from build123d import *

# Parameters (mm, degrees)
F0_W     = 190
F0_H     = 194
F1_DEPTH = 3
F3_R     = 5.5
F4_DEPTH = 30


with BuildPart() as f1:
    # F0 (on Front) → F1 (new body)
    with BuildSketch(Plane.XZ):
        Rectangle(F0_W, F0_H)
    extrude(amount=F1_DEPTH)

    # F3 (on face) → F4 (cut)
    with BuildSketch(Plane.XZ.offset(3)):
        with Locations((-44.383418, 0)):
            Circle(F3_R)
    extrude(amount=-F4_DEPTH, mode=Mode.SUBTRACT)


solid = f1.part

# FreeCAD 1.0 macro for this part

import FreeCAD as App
import Part
import Sketcher

doc = App.newDocument("Part")
body = doc.addObject("PartDesign::Body", "Body")

# Sketch on XZ plane
sketch1 = body.newObject("Sketcher::SketchObject", "Sketch")
sketch1.AttachmentSupport = (doc.getObject("XZ_Plane"), [""])
sketch1.MapMode = "FlatFace"
sketch1.addGeometry(Part.LineSegment(App.Vector(-95, 97, 0), App.Vector(-95, -97, 0)), False)
sketch1.addGeometry(Part.LineSegment(App.Vector(-95, -97, 0), App.Vector(95, -97, 0)), False)
sketch1.addGeometry(Part.LineSegment(App.Vector(95, -97, 0), App.Vector(95, 97, 0)), False)
sketch1.addGeometry(Part.LineSegment(App.Vector(95, 97, 0), App.Vector(-95, 97, 0)), False)
sketch1.addConstraint(Sketcher.Constraint("Coincident", 0, 2, 1, 1))
sketch1.addConstraint(Sketcher.Constraint("Coincident", 1, 2, 2, 1))
sketch1.addConstraint(Sketcher.Constraint("Coincident", 2, 2, 3, 1))
sketch1.addConstraint(Sketcher.Constraint("Coincident", 3, 2, 0, 1))
sketch1.addConstraint(Sketcher.Constraint("Vertical", 0))
sketch1.addConstraint(Sketcher.Constraint("Horizontal", 1))
sketch1.addConstraint(Sketcher.Constraint("Vertical", 2))
sketch1.addConstraint(Sketcher.Constraint("Horizontal", 3))
sketch1.addConstraint(Sketcher.Constraint("Symmetric", 0, 2, 2, 2, -1, 1))
sketch1.addConstraint(Sketcher.Constraint("DistanceX", 1, 1, 1, 2, 190.0))
sketch1.addConstraint(Sketcher.Constraint("DistanceY", 0, 2, 0, 1, 194.0))
pad1 = body.newObject("PartDesign::Pad", "Pad")
pad1.Profile = sketch1
pad1.Length = 3

# Sketch on XZ plane
sketch2 = body.newObject("Sketcher::SketchObject", "Sketch001")
sketch2.AttachmentSupport = (doc.getObject("XZ_Plane"), [""])
sketch2.MapMode = "FlatFace"
sketch2.AttachmentOffset = App.Placement(App.Vector(0, 0, 3), App.Rotation())
sketch2.addGeometry(Part.Circle(App.Vector(-44, 0, 0), App.Vector(0, 0, 1), 6), False)
sketch2.addConstraint(Sketcher.Constraint("PointOnObject", 0, 3, -1))
sketch2.addConstraint(Sketcher.Constraint("Diameter", 0, 11.0))
sketch2.addConstraint(Sketcher.Constraint("DistanceX", 0, 3, -1, 1, 44.383418))
pocket1 = body.newObject("PartDesign::Pocket", "Pocket")
pocket1.Profile = sketch2
pocket1.Length = 30

doc.recompute()
